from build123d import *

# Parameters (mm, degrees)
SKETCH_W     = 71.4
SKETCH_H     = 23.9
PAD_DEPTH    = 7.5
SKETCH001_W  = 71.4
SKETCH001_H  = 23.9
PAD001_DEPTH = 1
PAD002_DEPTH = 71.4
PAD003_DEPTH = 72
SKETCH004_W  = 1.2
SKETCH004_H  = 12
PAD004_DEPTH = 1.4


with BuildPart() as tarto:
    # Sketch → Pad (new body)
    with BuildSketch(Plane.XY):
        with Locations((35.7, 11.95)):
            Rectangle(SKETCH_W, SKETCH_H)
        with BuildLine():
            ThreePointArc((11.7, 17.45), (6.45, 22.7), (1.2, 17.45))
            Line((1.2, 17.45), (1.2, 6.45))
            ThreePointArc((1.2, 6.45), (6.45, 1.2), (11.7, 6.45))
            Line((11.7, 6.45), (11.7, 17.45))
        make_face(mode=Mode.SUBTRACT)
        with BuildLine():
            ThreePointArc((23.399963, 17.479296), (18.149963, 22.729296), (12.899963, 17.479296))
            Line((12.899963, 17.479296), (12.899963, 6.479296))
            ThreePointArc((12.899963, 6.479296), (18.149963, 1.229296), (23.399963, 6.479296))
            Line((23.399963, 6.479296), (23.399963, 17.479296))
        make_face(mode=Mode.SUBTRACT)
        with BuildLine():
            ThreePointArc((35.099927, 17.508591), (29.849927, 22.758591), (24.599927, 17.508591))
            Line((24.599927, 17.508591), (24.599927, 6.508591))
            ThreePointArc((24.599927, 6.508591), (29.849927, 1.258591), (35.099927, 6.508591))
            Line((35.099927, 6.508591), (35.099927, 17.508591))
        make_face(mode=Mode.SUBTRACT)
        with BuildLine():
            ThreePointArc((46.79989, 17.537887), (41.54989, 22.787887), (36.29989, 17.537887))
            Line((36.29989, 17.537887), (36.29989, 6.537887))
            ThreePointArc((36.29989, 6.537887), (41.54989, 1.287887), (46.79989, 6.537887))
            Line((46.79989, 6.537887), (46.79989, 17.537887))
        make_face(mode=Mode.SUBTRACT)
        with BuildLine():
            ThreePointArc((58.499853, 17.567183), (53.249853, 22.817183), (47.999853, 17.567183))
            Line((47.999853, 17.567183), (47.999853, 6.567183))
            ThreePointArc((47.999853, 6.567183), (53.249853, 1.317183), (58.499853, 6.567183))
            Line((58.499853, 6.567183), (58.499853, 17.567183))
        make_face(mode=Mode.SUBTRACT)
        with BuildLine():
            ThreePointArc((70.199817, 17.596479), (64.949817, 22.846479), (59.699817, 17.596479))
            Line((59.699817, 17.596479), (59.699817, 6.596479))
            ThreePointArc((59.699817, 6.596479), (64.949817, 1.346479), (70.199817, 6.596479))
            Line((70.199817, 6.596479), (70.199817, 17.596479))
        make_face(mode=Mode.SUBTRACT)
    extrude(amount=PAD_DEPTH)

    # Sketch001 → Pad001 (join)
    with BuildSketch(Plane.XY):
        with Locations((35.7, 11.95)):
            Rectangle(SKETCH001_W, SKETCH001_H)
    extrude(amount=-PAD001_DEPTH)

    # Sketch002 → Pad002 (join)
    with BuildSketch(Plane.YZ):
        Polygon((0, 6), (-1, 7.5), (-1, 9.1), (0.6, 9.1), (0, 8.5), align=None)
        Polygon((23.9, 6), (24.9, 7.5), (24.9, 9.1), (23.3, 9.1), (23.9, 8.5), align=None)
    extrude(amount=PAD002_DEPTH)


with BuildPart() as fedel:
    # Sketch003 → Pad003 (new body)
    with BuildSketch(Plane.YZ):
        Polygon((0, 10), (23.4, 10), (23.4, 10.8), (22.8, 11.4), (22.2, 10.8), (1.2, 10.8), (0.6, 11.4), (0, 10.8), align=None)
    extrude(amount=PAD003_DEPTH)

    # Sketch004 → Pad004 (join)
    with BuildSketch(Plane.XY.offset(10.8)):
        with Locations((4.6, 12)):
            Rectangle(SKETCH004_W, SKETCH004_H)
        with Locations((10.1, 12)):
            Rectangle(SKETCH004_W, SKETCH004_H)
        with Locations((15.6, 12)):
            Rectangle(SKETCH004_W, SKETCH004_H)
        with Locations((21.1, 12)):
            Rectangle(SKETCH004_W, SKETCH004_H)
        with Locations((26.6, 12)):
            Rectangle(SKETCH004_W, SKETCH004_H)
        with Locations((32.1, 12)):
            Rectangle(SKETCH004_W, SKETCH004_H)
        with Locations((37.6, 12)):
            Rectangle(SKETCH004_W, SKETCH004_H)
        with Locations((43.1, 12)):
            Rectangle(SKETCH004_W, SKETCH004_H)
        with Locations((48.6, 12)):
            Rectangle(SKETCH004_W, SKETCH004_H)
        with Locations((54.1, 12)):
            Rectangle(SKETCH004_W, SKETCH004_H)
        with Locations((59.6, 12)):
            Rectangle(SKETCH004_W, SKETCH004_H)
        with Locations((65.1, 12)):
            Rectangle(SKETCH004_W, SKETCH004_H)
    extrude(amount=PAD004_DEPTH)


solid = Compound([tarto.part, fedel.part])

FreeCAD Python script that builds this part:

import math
import FreeCAD as App
import Part
import Sketcher
from FreeCAD import Vector


def add_polygon(sketch, points):
    """Adds a closed chain of lines whose ends are joined by coincident constraints."""
    first, n = sketch.GeometryCount, len(points)
    for a, b in zip(points, points[1:] + points[:1]):
        sketch.addGeometry(Part.LineSegment(App.Vector(*a, 0), App.Vector(*b, 0)), False)
    for i in range(n):
        sketch.addConstraint(Sketcher.Constraint("Coincident", first + i, 2, first + (i + 1) % n, 1))

doc = App.newDocument("Part")
params = doc.addObject("Spreadsheet::Sheet", "Params")
for row, (alias, value) in enumerate([
    ("sketch1_height", "11 mm"),
    ("sketch1_radius", "5.25 mm"),
    ("sketch1_width", "71.4 mm"),
    ("sketch1_height2", "23.9 mm"),
    ("pad1_length", "7.5 mm"),
    ("sketch2_width", "71.4 mm"),
    ("sketch2_height", "23.9 mm"),
    ("pad2_length", "1 mm"),
    ("sketch3_width", "1.6 mm"),
    ("sketch3_height", "2.5 mm"),
    ("pad3_length", "71.4 mm"),
    ("sketch4_width", "21 mm"),
    ("sketch4_width2", "23.4 mm"),
    ("sketch4_height", "0.8 mm"),
    ("pad4_length", "72 mm"),
    ("sketch5_height", "12 mm"),
    ("sketch5_width", "1.2 mm"),
    ("pad5_length", "1.4 mm"),
], start=1):
    params.set(f"A{row}", alias)
    params.set(f"B{row}", "=" + value)
    params.setAlias(f"B{row}", alias)

body = doc.addObject("PartDesign::Body", "Body")

# Sketch on XY plane
sketch1 = body.newObject("Sketcher::SketchObject", "Sketch")
sketch1.AttachmentSupport = (doc.getObject("XY_Plane"), [""])
sketch1.MapMode = "FlatFace"
add_polygon(sketch1, [(0, 24), (0, 0), (71, 0), (71, 24)])  # lines 0-3
sketch1.addGeometry(Part.ArcOfCircle(Part.Circle(Vector(6, 17, 0), Vector(0, 0, 1), 5), math.radians(0), math.radians(180)), False)  # 4
sketch1.addGeometry(Part.LineSegment(Vector(12, 17, 0), Vector(12, 6, 0)), False)  # 5
sketch1.addGeometry(Part.ArcOfCircle(Part.Circle(Vector(6, 6, 0), Vector(0, 0, 1), 5), math.radians(180), math.radians(360)), False)  # 6
sketch1.addGeometry(Part.LineSegment(Vector(1, 6, 0), Vector(1, 17, 0)), False)  # 7
sketch1.addGeometry(Part.ArcOfCircle(Part.Circle(Vector(18, 17, 0), Vector(0, 0, 1), 5), math.radians(0), math.radians(180)), False)  # 8
sketch1.addGeometry(Part.LineSegment(Vector(23, 17, 0), Vector(23, 6, 0)), False)  # 9
sketch1.addGeometry(Part.ArcOfCircle(Part.Circle(Vector(18, 6, 0), Vector(0, 0, 1), 5), math.radians(180), math.radians(360)), False)  # 10
sketch1.addGeometry(Part.LineSegment(Vector(13, 6, 0), Vector(13, 17, 0)), False)  # 11
sketch1.addGeometry(Part.ArcOfCircle(Part.Circle(Vector(30, 18, 0), Vector(0, 0, 1), 5), math.radians(0), math.radians(180)), False)  # 12
sketch1.addGeometry(Part.LineSegment(Vector(35, 18, 0), Vector(35, 7, 0)), False)  # 13
sketch1.addGeometry(Part.ArcOfCircle(Part.Circle(Vector(30, 7, 0), Vector(0, 0, 1), 5), math.radians(180), math.radians(360)), False)  # 14
sketch1.addGeometry(Part.LineSegment(Vector(25, 7, 0), Vector(25, 18, 0)), False)  # 15
sketch1.addGeometry(Part.ArcOfCircle(Part.Circle(Vector(42, 18, 0), Vector(0, 0, 1), 5), math.radians(0), math.radians(180)), False)  # 16
sketch1.addGeometry(Part.LineSegment(Vector(47, 18, 0), Vector(47, 7, 0)), False)  # 17
sketch1.addGeometry(Part.ArcOfCircle(Part.Circle(Vector(42, 7, 0), Vector(0, 0, 1), 5), math.radians(180), math.radians(360)), False)  # 18
sketch1.addGeometry(Part.LineSegment(Vector(36, 7, 0), Vector(36, 18, 0)), False)  # 19
sketch1.addGeometry(Part.ArcOfCircle(Part.Circle(Vector(53, 18, 0), Vector(0, 0, 1), 5), math.radians(0), math.radians(180)), False)  # 20
sketch1.addGeometry(Part.LineSegment(Vector(58, 18, 0), Vector(58, 7, 0)), False)  # 21
sketch1.addGeometry(Part.ArcOfCircle(Part.Circle(Vector(53, 7, 0), Vector(0, 0, 1), 5), math.radians(180), math.radians(360)), False)  # 22
sketch1.addGeometry(Part.LineSegment(Vector(48, 7, 0), Vector(48, 18, 0)), False)  # 23
sketch1.addGeometry(Part.ArcOfCircle(Part.Circle(Vector(65, 18, 0), Vector(0, 0, 1), 5), math.radians(0), math.radians(180)), False)  # 24
sketch1.addGeometry(Part.LineSegment(Vector(70, 18, 0), Vector(70, 7, 0)), False)  # 25
sketch1.addGeometry(Part.ArcOfCircle(Part.Circle(Vector(65, 7, 0), Vector(0, 0, 1), 5), math.radians(180), math.radians(360)), False)  # 26
sketch1.addGeometry(Part.LineSegment(Vector(60, 7, 0), Vector(60, 18, 0)), False)  # 27
sketch1.addConstraint([
    Sketcher.Constraint("Tangent", 4, 1, 5, 1),
    Sketcher.Constraint("Tangent", 5, 2, 6, 2),
    Sketcher.Constraint("Tangent", 6, 1, 7, 1),
    Sketcher.Constraint("Tangent", 7, 2, 4, 2),
    Sketcher.Constraint("Tangent", 8, 1, 9, 1),
    Sketcher.Constraint("Tangent", 9, 2, 10, 2),
    Sketcher.Constraint("Tangent", 10, 1, 11, 1),
    Sketcher.Constraint("Tangent", 11, 2, 8, 2),
    Sketcher.Constraint("Tangent", 12, 1, 13, 1),
    Sketcher.Constraint("Tangent", 13, 2, 14, 2),
    Sketcher.Constraint("Tangent", 14, 1, 15, 1),
    Sketcher.Constraint("Tangent", 15, 2, 12, 2),
    Sketcher.Constraint("Tangent", 16, 1, 17, 1),
    Sketcher.Constraint("Tangent", 17, 2, 18, 2),
    Sketcher.Constraint("Tangent", 18, 1, 19, 1),
    Sketcher.Constraint("Tangent", 19, 2, 16, 2),
    Sketcher.Constraint("Tangent", 20, 1, 21, 1),
    Sketcher.Constraint("Tangent", 21, 2, 22, 2),
    Sketcher.Constraint("Tangent", 22, 1, 23, 1),
    Sketcher.Constraint("Tangent", 23, 2, 20, 2),
    Sketcher.Constraint("Tangent", 24, 1, 25, 1),
    Sketcher.Constraint("Tangent", 25, 2, 26, 2),
    Sketcher.Constraint("Tangent", 26, 1, 27, 1),
    Sketcher.Constraint("Tangent", 27, 2, 24, 2),
    Sketcher.Constraint("Vertical", 0),
    Sketcher.Constraint("Horizontal", 1),
    Sketcher.Constraint("Vertical", 2),
    Sketcher.Constraint("Horizontal", 3),
    Sketcher.Constraint("Vertical", 5),
    Sketcher.Constraint("Vertical", 7),
    Sketcher.Constraint("Vertical", 9),
    Sketcher.Constraint("Vertical", 11),
    Sketcher.Constraint("Vertical", 13),
    Sketcher.Constraint("Vertical", 15),
    Sketcher.Constraint("Vertical", 17),
    Sketcher.Constraint("Vertical", 19),
    Sketcher.Constraint("Vertical", 21),
    Sketcher.Constraint("Vertical", 23),
    Sketcher.Constraint("Vertical", 25),
    Sketcher.Constraint("Vertical", 27),
    Sketcher.Constraint("Coincident", 0, 2, -1, 1),
    Sketcher.Constraint("Equal", 6, 8),
    Sketcher.Constraint("Equal", 10, 12),
    Sketcher.Constraint("Equal", 14, 16),
    Sketcher.Constraint("Equal", 18, 20),
    Sketcher.Constraint("Equal", 22, 24),
    Sketcher.Constraint("Equal", 7, 9),
    Sketcher.Constraint("Equal", 11, 13),
    Sketcher.Constraint("Equal", 15, 17),
    Sketcher.Constraint("Equal", 19, 21),
    Sketcher.Constraint("Equal", 23, 25),
    Sketcher.Constraint("DistanceY", 5, 2, 5, 1, 11.0),
    Sketcher.Constraint("Radius", 4, 5.25),
    Sketcher.Constraint("DistanceX", 1, 1, 1, 2, 71.4),
    Sketcher.Constraint("DistanceY", 0, 2, 0, 1, 23.9),
    Sketcher.Constraint("DistanceX", -1, 1, 4, 1, 11.7),
    Sketcher.Constraint("DistanceY", -1, 1, 4, 3, 17.45),
    Sketcher.Constraint("DistanceY", -1, 1, 12, 3, 17.508591),
    Sketcher.Constraint("DistanceX", -1, 1, 16, 3, 41.54989),
    Sketcher.Constraint("DistanceY", -1, 1, 24, 3, 17.596479),
    Sketcher.Constraint("DistanceY", 8, 3, 16, 3, 0.058591),
    Sketcher.Constraint("DistanceX", 8, 3, 20, 3, 35.09989),
    Sketcher.Constraint("DistanceY", 14, 3, 22, 3, 0.058592),
    Sketcher.Constraint("DistanceY", 16, 3, 24, 3, 0.058592),
    Sketcher.Constraint("DistanceX", 12, 3, 24, 3, 35.09989),
    Sketcher.Constraint("DistanceX", -1, 1, 8, 3, 18.149963),
    Sketcher.Constraint("DistanceX", -1, 1, 12, 3, 29.849927),
])
sketch1.setExpression("Constraints[55]", "Params.sketch1_height")
sketch1.setExpression("Constraints[56]", "Params.sketch1_radius")
sketch1.setExpression("Constraints[57]", "Params.sketch1_width")
sketch1.setExpression("Constraints[58]", "Params.sketch1_height2")
pad1 = body.newObject("PartDesign::Pad", "Pad")
pad1.Profile = sketch1
pad1.setExpression("Length", "Params.pad1_length")

# Sketch on XY plane
sketch2 = body.newObject("Sketcher::SketchObject", "Sketch001")
sketch2.AttachmentSupport = (doc.getObject("XY_Plane"), [""])
sketch2.MapMode = "FlatFace"
add_polygon(sketch2, [(0, 24), (0, 0), (71, 0), (71, 24)])  # lines 0-3
sketch2.addConstraint([
    Sketcher.Constraint("Vertical", 0),
    Sketcher.Constraint("Horizontal", 1),
    Sketcher.Constraint("Vertical", 2),
    Sketcher.Constraint("Horizontal", 3),
    Sketcher.Constraint("Coincident", 0, 2, -1, 1),
    Sketcher.Constraint("DistanceX", 1, 1, 1, 2, 71.4),
    Sketcher.Constraint("DistanceY", 0, 2, 0, 1, 23.9),
])
sketch2.setExpression("Constraints[9]", "Params.sketch2_width")
sketch2.setExpression("Constraints[10]", "Params.sketch2_height")
pad2 = body.newObject("PartDesign::Pad", "Pad001")
pad2.Profile = sketch2
pad2.setExpression("Length", "Params.pad2_length")
pad2.Reversed = True

# Sketch on YZ plane
sketch3 = body.newObject("Sketcher::SketchObject", "Sketch002")
sketch3.AttachmentSupport = (doc.getObject("YZ_Plane"), [""])
sketch3.MapMode = "FlatFace"
add_polygon(sketch3, [(-1, 7.5), (0, 6), (0, 8.5), (0.6, 9.1), (-1, 9.1)])  # lines 0-4
add_polygon(sketch3, [(23.9, 6), (24.9, 7.5), (24.9, 9.1), (23.3, 9.1), (23.9, 8.5)])  # lines 5-9
sketch3.addConstraint([
    Sketcher.Constraint("Vertical", 1),
    Sketcher.Constraint("Horizontal", 3),
    Sketcher.Constraint("Vertical", 4),
    Sketcher.Constraint("Vertical", 6),
    Sketcher.Constraint("Horizontal", 7),
    Sketcher.Constraint("Vertical", 9),
    Sketcher.Constraint("PointOnObject", 0, 2, -2),
    Sketcher.Constraint("Perpendicular", 2, 8),
    Sketcher.Constraint("Horizontal", 4, 2, 5, 2),
    Sketcher.Constraint("Horizontal", 3, 2, 6, 2),
    Sketcher.Constraint("Horizontal", 1, 2, 8, 2),
    Sketcher.Constraint("Horizontal", 0, 2, 9, 2),
    Sketcher.Constraint("Equal", 3, 7),
    Sketcher.Constraint("Equal", 7, 4),
    Sketcher.Constraint("Equal", 0, 5),
    Sketcher.Constraint("DistanceX", 3, 2, 3, 1, 1.6),
    Sketcher.Constraint("DistanceY", 1, 1, 1, 2, 2.5),
    Sketcher.Constraint("DistanceY", -1, 1, 0, 2, 6.0),
    Sketcher.Constraint("DistanceX", 3, 2, -1, 1, 1.0),
    Sketcher.Constraint("DistanceX", -1, 1, 5, 2, 24.9),
])
sketch3.setExpression("Constraints[25]", "Params.sketch3_width")
sketch3.setExpression("Constraints[26]", "Params.sketch3_height")
pad3 = body.newObject("PartDesign::Pad", "Pad002")
pad3.Profile = sketch3
pad3.setExpression("Length", "Params.pad3_length")
body2 = doc.addObject("PartDesign::Body", "Body001")

# Sketch on YZ plane
sketch4 = body2.newObject("Sketcher::SketchObject", "Sketch003")
sketch4.AttachmentSupport = (doc.getObject("YZ_Plane001"), [""])
sketch4.MapMode = "FlatFace"
add_polygon(sketch4, [(0, 10), (23.4, 10), (23.4, 10.8), (22.8, 11.4), (22.2, 10.8), (1.2, 10.8), (0.6, 11.4), (0, 10.8)])  # lines 0-7
sketch4.addConstraint([
    Sketcher.Constraint("Horizontal", 0),
    Sketcher.Constraint("Vertical", 1),
    Sketcher.Constraint("Horizontal", 4),
    Sketcher.Constraint("Vertical", 7),
    Sketcher.Constraint("PointOnObject", 6, 2, -2),
    Sketcher.Constraint("Perpendicular", 2, 3),
    Sketcher.Constraint("Perpendicular", 3, 5),
    Sketcher.Constraint("Perpendicular", 5, 6),
    Sketcher.Constraint("Horizontal", 1, 2, 3, 2),
    Sketcher.Constraint("Horizontal", 2, 2, 5, 2),
    Sketcher.Constraint("Horizontal", 4, 2, 6, 2),
    Sketcher.Constraint("Equal", 2, 3),
    Sketcher.Constraint("DistanceX", 4, 2, 4, 1, 21.0),
    Sketcher.Constraint("DistanceX", 0, 1, 0, 2, 23.4),
    Sketcher.Constraint("DistanceY", 1, 1, 1, 2, 0.8),
    Sketcher.Constraint("DistanceY", -1, 1, 0, 2, 10.0),
])
sketch4.setExpression("Constraints[20]", "Params.sketch4_width")
sketch4.setExpression("Constraints[21]", "Params.sketch4_width2")
sketch4.setExpression("Constraints[22]", "Params.sketch4_height")
pad4 = body2.newObject("PartDesign::Pad", "Pad003")
pad4.Profile = sketch4
pad4.setExpression("Length", "Params.pad4_length")

# Sketch on XY plane
sketch5 = body2.newObject("Sketcher::SketchObject", "Sketch004")
sketch5.AttachmentSupport = (doc.getObject("XY_Plane001"), [""])
sketch5.MapMode = "FlatFace"
sketch5.AttachmentOffset = App.Placement(Vector(0, 0, 10.8), App.Rotation())
add_polygon(sketch5, [(4, 18), (4, 6), (5.2, 6), (5.2, 18)])  # lines 0-3
add_polygon(sketch5, [(9.5, 18), (9.5, 6), (10.7, 6), (10.7, 18)])  # lines 4-7
add_polygon(sketch5, [(15, 18), (15, 6), (16.2, 6), (16.2, 18)])  # lines 8-11
add_polygon(sketch5, [(20.5, 18), (20.5, 6), (21.7, 6), (21.7, 18)])  # lines 12-15
add_polygon(sketch5, [(26, 18), (26, 6), (27.2, 6), (27.2, 18)])  # lines 16-19
add_polygon(sketch5, [(31.5, 18), (31.5, 6), (32.7, 6), (32.7, 18)])  # lines 20-23
add_polygon(sketch5, [(37, 18), (37, 6), (38.2, 6), (38.2, 18)])  # lines 24-27
add_polygon(sketch5, [(42.5, 18), (42.5, 6), (43.7, 6), (43.7, 18)])  # lines 28-31
add_polygon(sketch5, [(48, 18), (48, 6), (49.2, 6), (49.2, 18)])  # lines 32-35
add_polygon(sketch5, [(53.5, 18), (53.5, 6), (54.7, 6), (54.7, 18)])  # lines 36-39
add_polygon(sketch5, [(59, 18), (59, 6), (60.2, 6), (60.2, 18)])  # lines 40-43
add_polygon(sketch5, [(64.5, 18), (64.5, 6), (65.7, 6), (65.7, 18)])  # lines 44-47
sketch5.addConstraint([
    Sketcher.Constraint("Vertical", 0),
    Sketcher.Constraint("Horizontal", 1),
    Sketcher.Constraint("Vertical", 2),
    Sketcher.Constraint("Horizontal", 3),
    Sketcher.Constraint("Vertical", 4),
    Sketcher.Constraint("Horizontal", 5),
    Sketcher.Constraint("Vertical", 6),
    Sketcher.Constraint("Horizontal", 7),
    Sketcher.Constraint("Vertical", 8),
    Sketcher.Constraint("Horizontal", 9),
    Sketcher.Constraint("Vertical", 10),
    Sketcher.Constraint("Horizontal", 11),
    Sketcher.Constraint("Vertical", 12),
    Sketcher.Constraint("Horizontal", 13),
    Sketcher.Constraint("Vertical", 14),
    Sketcher.Constraint("Horizontal", 15),
    Sketcher.Constraint("Vertical", 16),
    Sketcher.Constraint("Horizontal", 17),
    Sketcher.Constraint("Vertical", 18),
    Sketcher.Constraint("Horizontal", 19),
    Sketcher.Constraint("Vertical", 20),
    Sketcher.Constraint("Horizontal", 21),
    Sketcher.Constraint("Vertical", 22),
    Sketcher.Constraint("Horizontal", 23),
    Sketcher.Constraint("Vertical", 24),
    Sketcher.Constraint("Horizontal", 25),
    Sketcher.Constraint("Vertical", 26),
    Sketcher.Constraint("Horizontal", 27),
    Sketcher.Constraint("Vertical", 28),
    Sketcher.Constraint("Horizontal", 29),
    Sketcher.Constraint("Vertical", 30),
    Sketcher.Constraint("Horizontal", 31),
    Sketcher.Constraint("Vertical", 32),
    Sketcher.Constraint("Horizontal", 33),
    Sketcher.Constraint("Vertical", 34),
    Sketcher.Constraint("Horizontal", 35),
    Sketcher.Constraint("Vertical", 36),
    Sketcher.Constraint("Horizontal", 37),
    Sketcher.Constraint("Vertical", 38),
    Sketcher.Constraint("Horizontal", 39),
    Sketcher.Constraint("Vertical", 40),
    Sketcher.Constraint("Horizontal", 41),
    Sketcher.Constraint("Vertical", 42),
    Sketcher.Constraint("Horizontal", 43),
    Sketcher.Constraint("Vertical", 44),
    Sketcher.Constraint("Horizontal", 45),
    Sketcher.Constraint("Vertical", 46),
    Sketcher.Constraint("Horizontal", 47),
    Sketcher.Constraint("Horizontal", 1, 2, 4, 2),
    Sketcher.Constraint("Horizontal", 3, 2, 6, 2),
    Sketcher.Constraint("Horizontal", 5, 2, 8, 2),
    Sketcher.Constraint("Horizontal", 7, 2, 10, 2),
    Sketcher.Constraint("Horizontal", 9, 2, 12, 2),
    Sketcher.Constraint("Horizontal", 11, 2, 14, 2),
    Sketcher.Constraint("Horizontal", 13, 2, 16, 2),
    Sketcher.Constraint("Horizontal", 15, 2, 18, 2),
    Sketcher.Constraint("Horizontal", 17, 2, 20, 2),
    Sketcher.Constraint("Horizontal", 19, 2, 22, 2),
    Sketcher.Constraint("Horizontal", 21, 2, 24, 2),
    Sketcher.Constraint("Horizontal", 23, 2, 26, 2),
    Sketcher.Constraint("Horizontal", 25, 2, 28, 2),
    Sketcher.Constraint("Horizontal", 27, 2, 30, 2),
    Sketcher.Constraint("Horizontal", 29, 2, 32, 2),
    Sketcher.Constraint("Horizontal", 31, 2, 34, 2),
    Sketcher.Constraint("Horizontal", 33, 2, 36, 2),
    Sketcher.Constraint("Horizontal", 35, 2, 38, 2),
    Sketcher.Constraint("Horizontal", 37, 2, 40, 2),
    Sketcher.Constraint("Horizontal", 39, 2, 42, 2),
    Sketcher.Constraint("Horizontal", 41, 2, 44, 2),
    Sketcher.Constraint("Horizontal", 43, 2, 46, 2),
    Sketcher.Constraint("Equal", 3, 5),
    Sketcher.Constraint("Equal", 7, 9),
    Sketcher.Constraint("Equal", 11, 13),
    Sketcher.Constraint("Equal", 15, 17),
    Sketcher.Constraint("Equal", 19, 21),
    Sketcher.Constraint("Equal", 23, 25),
    Sketcher.Constraint("Equal", 27, 29),
    Sketcher.Constraint("Equal", 31, 33),
    Sketcher.Constraint("Equal", 35, 37),
    Sketcher.Constraint("Equal", 39, 41),
    Sketcher.Constraint("Equal", 43, 45),
    Sketcher.Constraint("DistanceY", 0, 2, 0, 1, 12.0),
    Sketcher.Constraint("DistanceX", 1, 1, 1, 2, 1.2),
    Sketcher.Constraint("DistanceX", -1, 1, 0, 2, 4.0),
    Sketcher.Constraint("DistanceY", -1, 1, 0, 2, 6.0),
    Sketcher.Constraint("DistanceX", -1, 1, 8, 2, 15.0),
    Sketcher.Constraint("DistanceX", -1, 1, 16, 2, 26.0),
    Sketcher.Constraint("DistanceX", -1, 1, 24, 2, 37.0),
    Sketcher.Constraint("DistanceX", -1, 1, 32, 2, 48.0),
    Sketcher.Constraint("DistanceX", -1, 1, 40, 2, 59.0),
    Sketcher.Constraint("DistanceX", 4, 2, 12, 2, 11.0),
    Sketcher.Constraint("DistanceX", 12, 2, 20, 2, 11.0),
    Sketcher.Constraint("DistanceX", 20, 2, 28, 2, 11.0),
    Sketcher.Constraint("DistanceX", 28, 2, 36, 2, 11.0),
    Sketcher.Constraint("DistanceX", 36, 2, 44, 2, 11.0),
    Sketcher.Constraint("DistanceX", -1, 1, 4, 2, 9.5),
])
sketch5.setExpression("Constraints[129]", "Params.sketch5_height")
sketch5.setExpression("Constraints[130]", "Params.sketch5_width")
pad5 = body2.newObject("PartDesign::Pad", "Pad004")
pad5.Profile = sketch5
pad5.setExpression("Length", "Params.pad5_length")

doc.recompute()
